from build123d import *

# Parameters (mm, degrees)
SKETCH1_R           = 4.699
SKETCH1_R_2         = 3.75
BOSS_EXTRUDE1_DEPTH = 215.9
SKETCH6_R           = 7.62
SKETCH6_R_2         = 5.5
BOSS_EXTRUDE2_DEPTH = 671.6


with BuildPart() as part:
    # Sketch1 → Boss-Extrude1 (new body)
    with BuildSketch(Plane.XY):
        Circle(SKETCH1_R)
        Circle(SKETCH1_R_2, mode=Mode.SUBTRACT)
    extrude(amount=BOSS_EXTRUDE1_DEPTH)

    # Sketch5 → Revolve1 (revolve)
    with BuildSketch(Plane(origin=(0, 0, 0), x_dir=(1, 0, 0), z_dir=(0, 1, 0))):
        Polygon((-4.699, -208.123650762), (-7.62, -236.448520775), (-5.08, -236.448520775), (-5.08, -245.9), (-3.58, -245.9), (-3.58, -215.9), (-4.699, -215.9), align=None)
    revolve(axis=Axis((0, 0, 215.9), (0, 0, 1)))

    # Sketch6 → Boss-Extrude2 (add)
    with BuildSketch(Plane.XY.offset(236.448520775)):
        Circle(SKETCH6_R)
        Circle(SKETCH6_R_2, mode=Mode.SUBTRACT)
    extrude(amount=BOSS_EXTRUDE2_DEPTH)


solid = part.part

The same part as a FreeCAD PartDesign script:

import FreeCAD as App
import Part
import Sketcher

V = App.Vector

doc = App.newDocument("Part")
params = doc.addObject("Spreadsheet::Sheet", "Params")
for row, (alias, value) in enumerate([
    ("sketch1_diameter", "7.5 mm"),
    ("pad1_length", "215.9 mm"),
    ("sketch2_height", "30 mm"),
    ("sketch2_width", "1.5 mm"),
    ("sketch2_width2", "2.54 mm"),
    ("revolution_angle", "360 deg"),
    ("sketch3_diameter", "11 mm"),
    ("sketch3_diameter2", "15.24 mm"),
    ("pad2_length", "671.6 mm"),
], start=1):
    params.set(f"A{row}", alias)
    params.set(f"B{row}", "=" + value)
    params.setAlias(f"B{row}", alias)

body = doc.addObject("PartDesign::Body", "Body")

# Sketch on XY plane
sketch1 = body.newObject("Sketcher::SketchObject", "Sketch")
sketch1.AttachmentSupport = (doc.getObject("XY_Plane"), [""])
sketch1.MapMode = "FlatFace"
sketch1.addGeometry(Part.Circle(V(0, 0, 0), V(0, 0, 1), 4.699), False)
sketch1.addGeometry(Part.Circle(V(0, 0, 0), V(0, 0, 1), 3.75), False)
sketch1.addConstraint(Sketcher.Constraint("Coincident", 0, 3, -1, 1))
sketch1.addConstraint(Sketcher.Constraint("Coincident", 1, 3, -1, 1))
sketch1.addConstraint(Sketcher.Constraint("Diameter", 1, 7.5))
sketch1.addConstraint(Sketcher.Constraint("Diameter", 0, 9.398))
sketch1.setExpression("Constraints[2]", "Params.sketch1_diameter")
pad1 = body.newObject("PartDesign::Pad", "Pad")
pad1.Profile = sketch1
pad1.setExpression("Length", "Params.pad1_length")

# Sketch on XZ plane
sketch2 = body.newObject("Sketcher::SketchObject", "Sketch001")
sketch2.AttachmentSupport = (doc.getObject("XZ_Plane"), [""])
sketch2.MapMode = "FlatFace"
sketch2.addGeometry(Part.LineSegment(V(-4.699, 208.123651, 0), V(-7.62, 236.448521, 0)), False)
sketch2.addGeometry(Part.LineSegment(V(-7.62, 236.448521, 0), V(-5.08, 236.448521, 0)), False)
sketch2.addGeometry(Part.LineSegment(V(-5.08, 236.448521, 0), V(-5.08, 245.9, 0)), False)
sketch2.addGeometry(Part.LineSegment(V(-5.08, 245.9, 0), V(-3.58, 245.9, 0)), False)
sketch2.addGeometry(Part.LineSegment(V(-3.58, 245.9, 0), V(-3.58, 215.9, 0)), False)
sketch2.addGeometry(Part.LineSegment(V(-3.58, 215.9, 0), V(-4.699, 215.9, 0)), False)
sketch2.addGeometry(Part.LineSegment(V(-4.699, 215.9, 0), V(-4.699, 208.123651, 0)), False)
sketch2.addConstraint(Sketcher.Constraint("Coincident", 0, 2, 1, 1))
sketch2.addConstraint(Sketcher.Constraint("Coincident", 1, 2, 2, 1))
sketch2.addConstraint(Sketcher.Constraint("Coincident", 2, 2, 3, 1))
sketch2.addConstraint(Sketcher.Constraint("Coincident", 3, 2, 4, 1))
sketch2.addConstraint(Sketcher.Constraint("Coincident", 4, 2, 5, 1))
sketch2.addConstraint(Sketcher.Constraint("Coincident", 5, 2, 6, 1))
sketch2.addConstraint(Sketcher.Constraint("Coincident", 6, 2, 0, 1))
sketch2.addConstraint(Sketcher.Constraint("Horizontal", 1))
sketch2.addConstraint(Sketcher.Constraint("Vertical", 2))
sketch2.addConstraint(Sketcher.Constraint("Horizontal", 3))
sketch2.addConstraint(Sketcher.Constraint("Vertical", 4))
sketch2.addConstraint(Sketcher.Constraint("Horizontal", 5))
sketch2.addConstraint(Sketcher.Constraint("Vertical", 6))
sketch2.addConstraint(Sketcher.Constraint("DistanceY", 4, 2, 4, 1, 30.0))
sketch2.addConstraint(Sketcher.Constraint("DistanceX", 3, 1, 3, 2, 1.5))
sketch2.addConstraint(Sketcher.Constraint("DistanceX", 1, 1, 1, 2, 2.54))
sketch2.addConstraint(Sketcher.Constraint("DistanceY", -1, 1, 2, 2, 245.9))
sketch2.addConstraint(Sketcher.Constraint("DistanceX", 5, 2, 5, 1, 1.119))
sketch2.addConstraint(Sketcher.Constraint("DistanceX", 0, 2, -1, 1, 7.62))
sketch2.addConstraint(Sketcher.Constraint("DistanceY", 2, 1, 2, 2, 9.451479))
sketch2.addConstraint(Sketcher.Constraint("DistanceY", 6, 2, 6, 1, 7.776349))
sketch2.setExpression("Constraints[13]", "Params.sketch2_height")
sketch2.setExpression("Constraints[14]", "Params.sketch2_width")
sketch2.setExpression("Constraints[15]", "Params.sketch2_width2")
revolution = body.newObject("PartDesign::Revolution", "Revolution")
revolution.Profile = sketch2
revolution.ReferenceAxis = (sketch2, ["V_Axis"])
revolution.setExpression("Angle", "Params.revolution_angle")

# Sketch on XY plane
sketch3 = body.newObject("Sketcher::SketchObject", "Sketch002")
sketch3.AttachmentSupport = (doc.getObject("XY_Plane"), [""])
sketch3.MapMode = "FlatFace"
sketch3.AttachmentOffset = App.Placement(V(0, 0, 236.448521), App.Rotation())
sketch3.addGeometry(Part.Circle(V(0, 0, 0), V(0, 0, 1), 7.62), False)
sketch3.addGeometry(Part.Circle(V(0, 0, 0), V(0, 0, 1), 5.5), False)
sketch3.addConstraint(Sketcher.Constraint("Coincident", 0, 3, -1, 1))
sketch3.addConstraint(Sketcher.Constraint("Coincident", 1, 3, -1, 1))
sketch3.addConstraint(Sketcher.Constraint("Diameter", 1, 11.0))
sketch3.addConstraint(Sketcher.Constraint("Diameter", 0, 15.24))
sketch3.setExpression("Constraints[2]", "Params.sketch3_diameter")
sketch3.setExpression("Constraints[3]", "Params.sketch3_diameter2")
pad2 = body.newObject("PartDesign::Pad", "Pad001")
pad2.Profile = sketch3
pad2.setExpression("Length", "Params.pad2_length")

doc.recompute()
